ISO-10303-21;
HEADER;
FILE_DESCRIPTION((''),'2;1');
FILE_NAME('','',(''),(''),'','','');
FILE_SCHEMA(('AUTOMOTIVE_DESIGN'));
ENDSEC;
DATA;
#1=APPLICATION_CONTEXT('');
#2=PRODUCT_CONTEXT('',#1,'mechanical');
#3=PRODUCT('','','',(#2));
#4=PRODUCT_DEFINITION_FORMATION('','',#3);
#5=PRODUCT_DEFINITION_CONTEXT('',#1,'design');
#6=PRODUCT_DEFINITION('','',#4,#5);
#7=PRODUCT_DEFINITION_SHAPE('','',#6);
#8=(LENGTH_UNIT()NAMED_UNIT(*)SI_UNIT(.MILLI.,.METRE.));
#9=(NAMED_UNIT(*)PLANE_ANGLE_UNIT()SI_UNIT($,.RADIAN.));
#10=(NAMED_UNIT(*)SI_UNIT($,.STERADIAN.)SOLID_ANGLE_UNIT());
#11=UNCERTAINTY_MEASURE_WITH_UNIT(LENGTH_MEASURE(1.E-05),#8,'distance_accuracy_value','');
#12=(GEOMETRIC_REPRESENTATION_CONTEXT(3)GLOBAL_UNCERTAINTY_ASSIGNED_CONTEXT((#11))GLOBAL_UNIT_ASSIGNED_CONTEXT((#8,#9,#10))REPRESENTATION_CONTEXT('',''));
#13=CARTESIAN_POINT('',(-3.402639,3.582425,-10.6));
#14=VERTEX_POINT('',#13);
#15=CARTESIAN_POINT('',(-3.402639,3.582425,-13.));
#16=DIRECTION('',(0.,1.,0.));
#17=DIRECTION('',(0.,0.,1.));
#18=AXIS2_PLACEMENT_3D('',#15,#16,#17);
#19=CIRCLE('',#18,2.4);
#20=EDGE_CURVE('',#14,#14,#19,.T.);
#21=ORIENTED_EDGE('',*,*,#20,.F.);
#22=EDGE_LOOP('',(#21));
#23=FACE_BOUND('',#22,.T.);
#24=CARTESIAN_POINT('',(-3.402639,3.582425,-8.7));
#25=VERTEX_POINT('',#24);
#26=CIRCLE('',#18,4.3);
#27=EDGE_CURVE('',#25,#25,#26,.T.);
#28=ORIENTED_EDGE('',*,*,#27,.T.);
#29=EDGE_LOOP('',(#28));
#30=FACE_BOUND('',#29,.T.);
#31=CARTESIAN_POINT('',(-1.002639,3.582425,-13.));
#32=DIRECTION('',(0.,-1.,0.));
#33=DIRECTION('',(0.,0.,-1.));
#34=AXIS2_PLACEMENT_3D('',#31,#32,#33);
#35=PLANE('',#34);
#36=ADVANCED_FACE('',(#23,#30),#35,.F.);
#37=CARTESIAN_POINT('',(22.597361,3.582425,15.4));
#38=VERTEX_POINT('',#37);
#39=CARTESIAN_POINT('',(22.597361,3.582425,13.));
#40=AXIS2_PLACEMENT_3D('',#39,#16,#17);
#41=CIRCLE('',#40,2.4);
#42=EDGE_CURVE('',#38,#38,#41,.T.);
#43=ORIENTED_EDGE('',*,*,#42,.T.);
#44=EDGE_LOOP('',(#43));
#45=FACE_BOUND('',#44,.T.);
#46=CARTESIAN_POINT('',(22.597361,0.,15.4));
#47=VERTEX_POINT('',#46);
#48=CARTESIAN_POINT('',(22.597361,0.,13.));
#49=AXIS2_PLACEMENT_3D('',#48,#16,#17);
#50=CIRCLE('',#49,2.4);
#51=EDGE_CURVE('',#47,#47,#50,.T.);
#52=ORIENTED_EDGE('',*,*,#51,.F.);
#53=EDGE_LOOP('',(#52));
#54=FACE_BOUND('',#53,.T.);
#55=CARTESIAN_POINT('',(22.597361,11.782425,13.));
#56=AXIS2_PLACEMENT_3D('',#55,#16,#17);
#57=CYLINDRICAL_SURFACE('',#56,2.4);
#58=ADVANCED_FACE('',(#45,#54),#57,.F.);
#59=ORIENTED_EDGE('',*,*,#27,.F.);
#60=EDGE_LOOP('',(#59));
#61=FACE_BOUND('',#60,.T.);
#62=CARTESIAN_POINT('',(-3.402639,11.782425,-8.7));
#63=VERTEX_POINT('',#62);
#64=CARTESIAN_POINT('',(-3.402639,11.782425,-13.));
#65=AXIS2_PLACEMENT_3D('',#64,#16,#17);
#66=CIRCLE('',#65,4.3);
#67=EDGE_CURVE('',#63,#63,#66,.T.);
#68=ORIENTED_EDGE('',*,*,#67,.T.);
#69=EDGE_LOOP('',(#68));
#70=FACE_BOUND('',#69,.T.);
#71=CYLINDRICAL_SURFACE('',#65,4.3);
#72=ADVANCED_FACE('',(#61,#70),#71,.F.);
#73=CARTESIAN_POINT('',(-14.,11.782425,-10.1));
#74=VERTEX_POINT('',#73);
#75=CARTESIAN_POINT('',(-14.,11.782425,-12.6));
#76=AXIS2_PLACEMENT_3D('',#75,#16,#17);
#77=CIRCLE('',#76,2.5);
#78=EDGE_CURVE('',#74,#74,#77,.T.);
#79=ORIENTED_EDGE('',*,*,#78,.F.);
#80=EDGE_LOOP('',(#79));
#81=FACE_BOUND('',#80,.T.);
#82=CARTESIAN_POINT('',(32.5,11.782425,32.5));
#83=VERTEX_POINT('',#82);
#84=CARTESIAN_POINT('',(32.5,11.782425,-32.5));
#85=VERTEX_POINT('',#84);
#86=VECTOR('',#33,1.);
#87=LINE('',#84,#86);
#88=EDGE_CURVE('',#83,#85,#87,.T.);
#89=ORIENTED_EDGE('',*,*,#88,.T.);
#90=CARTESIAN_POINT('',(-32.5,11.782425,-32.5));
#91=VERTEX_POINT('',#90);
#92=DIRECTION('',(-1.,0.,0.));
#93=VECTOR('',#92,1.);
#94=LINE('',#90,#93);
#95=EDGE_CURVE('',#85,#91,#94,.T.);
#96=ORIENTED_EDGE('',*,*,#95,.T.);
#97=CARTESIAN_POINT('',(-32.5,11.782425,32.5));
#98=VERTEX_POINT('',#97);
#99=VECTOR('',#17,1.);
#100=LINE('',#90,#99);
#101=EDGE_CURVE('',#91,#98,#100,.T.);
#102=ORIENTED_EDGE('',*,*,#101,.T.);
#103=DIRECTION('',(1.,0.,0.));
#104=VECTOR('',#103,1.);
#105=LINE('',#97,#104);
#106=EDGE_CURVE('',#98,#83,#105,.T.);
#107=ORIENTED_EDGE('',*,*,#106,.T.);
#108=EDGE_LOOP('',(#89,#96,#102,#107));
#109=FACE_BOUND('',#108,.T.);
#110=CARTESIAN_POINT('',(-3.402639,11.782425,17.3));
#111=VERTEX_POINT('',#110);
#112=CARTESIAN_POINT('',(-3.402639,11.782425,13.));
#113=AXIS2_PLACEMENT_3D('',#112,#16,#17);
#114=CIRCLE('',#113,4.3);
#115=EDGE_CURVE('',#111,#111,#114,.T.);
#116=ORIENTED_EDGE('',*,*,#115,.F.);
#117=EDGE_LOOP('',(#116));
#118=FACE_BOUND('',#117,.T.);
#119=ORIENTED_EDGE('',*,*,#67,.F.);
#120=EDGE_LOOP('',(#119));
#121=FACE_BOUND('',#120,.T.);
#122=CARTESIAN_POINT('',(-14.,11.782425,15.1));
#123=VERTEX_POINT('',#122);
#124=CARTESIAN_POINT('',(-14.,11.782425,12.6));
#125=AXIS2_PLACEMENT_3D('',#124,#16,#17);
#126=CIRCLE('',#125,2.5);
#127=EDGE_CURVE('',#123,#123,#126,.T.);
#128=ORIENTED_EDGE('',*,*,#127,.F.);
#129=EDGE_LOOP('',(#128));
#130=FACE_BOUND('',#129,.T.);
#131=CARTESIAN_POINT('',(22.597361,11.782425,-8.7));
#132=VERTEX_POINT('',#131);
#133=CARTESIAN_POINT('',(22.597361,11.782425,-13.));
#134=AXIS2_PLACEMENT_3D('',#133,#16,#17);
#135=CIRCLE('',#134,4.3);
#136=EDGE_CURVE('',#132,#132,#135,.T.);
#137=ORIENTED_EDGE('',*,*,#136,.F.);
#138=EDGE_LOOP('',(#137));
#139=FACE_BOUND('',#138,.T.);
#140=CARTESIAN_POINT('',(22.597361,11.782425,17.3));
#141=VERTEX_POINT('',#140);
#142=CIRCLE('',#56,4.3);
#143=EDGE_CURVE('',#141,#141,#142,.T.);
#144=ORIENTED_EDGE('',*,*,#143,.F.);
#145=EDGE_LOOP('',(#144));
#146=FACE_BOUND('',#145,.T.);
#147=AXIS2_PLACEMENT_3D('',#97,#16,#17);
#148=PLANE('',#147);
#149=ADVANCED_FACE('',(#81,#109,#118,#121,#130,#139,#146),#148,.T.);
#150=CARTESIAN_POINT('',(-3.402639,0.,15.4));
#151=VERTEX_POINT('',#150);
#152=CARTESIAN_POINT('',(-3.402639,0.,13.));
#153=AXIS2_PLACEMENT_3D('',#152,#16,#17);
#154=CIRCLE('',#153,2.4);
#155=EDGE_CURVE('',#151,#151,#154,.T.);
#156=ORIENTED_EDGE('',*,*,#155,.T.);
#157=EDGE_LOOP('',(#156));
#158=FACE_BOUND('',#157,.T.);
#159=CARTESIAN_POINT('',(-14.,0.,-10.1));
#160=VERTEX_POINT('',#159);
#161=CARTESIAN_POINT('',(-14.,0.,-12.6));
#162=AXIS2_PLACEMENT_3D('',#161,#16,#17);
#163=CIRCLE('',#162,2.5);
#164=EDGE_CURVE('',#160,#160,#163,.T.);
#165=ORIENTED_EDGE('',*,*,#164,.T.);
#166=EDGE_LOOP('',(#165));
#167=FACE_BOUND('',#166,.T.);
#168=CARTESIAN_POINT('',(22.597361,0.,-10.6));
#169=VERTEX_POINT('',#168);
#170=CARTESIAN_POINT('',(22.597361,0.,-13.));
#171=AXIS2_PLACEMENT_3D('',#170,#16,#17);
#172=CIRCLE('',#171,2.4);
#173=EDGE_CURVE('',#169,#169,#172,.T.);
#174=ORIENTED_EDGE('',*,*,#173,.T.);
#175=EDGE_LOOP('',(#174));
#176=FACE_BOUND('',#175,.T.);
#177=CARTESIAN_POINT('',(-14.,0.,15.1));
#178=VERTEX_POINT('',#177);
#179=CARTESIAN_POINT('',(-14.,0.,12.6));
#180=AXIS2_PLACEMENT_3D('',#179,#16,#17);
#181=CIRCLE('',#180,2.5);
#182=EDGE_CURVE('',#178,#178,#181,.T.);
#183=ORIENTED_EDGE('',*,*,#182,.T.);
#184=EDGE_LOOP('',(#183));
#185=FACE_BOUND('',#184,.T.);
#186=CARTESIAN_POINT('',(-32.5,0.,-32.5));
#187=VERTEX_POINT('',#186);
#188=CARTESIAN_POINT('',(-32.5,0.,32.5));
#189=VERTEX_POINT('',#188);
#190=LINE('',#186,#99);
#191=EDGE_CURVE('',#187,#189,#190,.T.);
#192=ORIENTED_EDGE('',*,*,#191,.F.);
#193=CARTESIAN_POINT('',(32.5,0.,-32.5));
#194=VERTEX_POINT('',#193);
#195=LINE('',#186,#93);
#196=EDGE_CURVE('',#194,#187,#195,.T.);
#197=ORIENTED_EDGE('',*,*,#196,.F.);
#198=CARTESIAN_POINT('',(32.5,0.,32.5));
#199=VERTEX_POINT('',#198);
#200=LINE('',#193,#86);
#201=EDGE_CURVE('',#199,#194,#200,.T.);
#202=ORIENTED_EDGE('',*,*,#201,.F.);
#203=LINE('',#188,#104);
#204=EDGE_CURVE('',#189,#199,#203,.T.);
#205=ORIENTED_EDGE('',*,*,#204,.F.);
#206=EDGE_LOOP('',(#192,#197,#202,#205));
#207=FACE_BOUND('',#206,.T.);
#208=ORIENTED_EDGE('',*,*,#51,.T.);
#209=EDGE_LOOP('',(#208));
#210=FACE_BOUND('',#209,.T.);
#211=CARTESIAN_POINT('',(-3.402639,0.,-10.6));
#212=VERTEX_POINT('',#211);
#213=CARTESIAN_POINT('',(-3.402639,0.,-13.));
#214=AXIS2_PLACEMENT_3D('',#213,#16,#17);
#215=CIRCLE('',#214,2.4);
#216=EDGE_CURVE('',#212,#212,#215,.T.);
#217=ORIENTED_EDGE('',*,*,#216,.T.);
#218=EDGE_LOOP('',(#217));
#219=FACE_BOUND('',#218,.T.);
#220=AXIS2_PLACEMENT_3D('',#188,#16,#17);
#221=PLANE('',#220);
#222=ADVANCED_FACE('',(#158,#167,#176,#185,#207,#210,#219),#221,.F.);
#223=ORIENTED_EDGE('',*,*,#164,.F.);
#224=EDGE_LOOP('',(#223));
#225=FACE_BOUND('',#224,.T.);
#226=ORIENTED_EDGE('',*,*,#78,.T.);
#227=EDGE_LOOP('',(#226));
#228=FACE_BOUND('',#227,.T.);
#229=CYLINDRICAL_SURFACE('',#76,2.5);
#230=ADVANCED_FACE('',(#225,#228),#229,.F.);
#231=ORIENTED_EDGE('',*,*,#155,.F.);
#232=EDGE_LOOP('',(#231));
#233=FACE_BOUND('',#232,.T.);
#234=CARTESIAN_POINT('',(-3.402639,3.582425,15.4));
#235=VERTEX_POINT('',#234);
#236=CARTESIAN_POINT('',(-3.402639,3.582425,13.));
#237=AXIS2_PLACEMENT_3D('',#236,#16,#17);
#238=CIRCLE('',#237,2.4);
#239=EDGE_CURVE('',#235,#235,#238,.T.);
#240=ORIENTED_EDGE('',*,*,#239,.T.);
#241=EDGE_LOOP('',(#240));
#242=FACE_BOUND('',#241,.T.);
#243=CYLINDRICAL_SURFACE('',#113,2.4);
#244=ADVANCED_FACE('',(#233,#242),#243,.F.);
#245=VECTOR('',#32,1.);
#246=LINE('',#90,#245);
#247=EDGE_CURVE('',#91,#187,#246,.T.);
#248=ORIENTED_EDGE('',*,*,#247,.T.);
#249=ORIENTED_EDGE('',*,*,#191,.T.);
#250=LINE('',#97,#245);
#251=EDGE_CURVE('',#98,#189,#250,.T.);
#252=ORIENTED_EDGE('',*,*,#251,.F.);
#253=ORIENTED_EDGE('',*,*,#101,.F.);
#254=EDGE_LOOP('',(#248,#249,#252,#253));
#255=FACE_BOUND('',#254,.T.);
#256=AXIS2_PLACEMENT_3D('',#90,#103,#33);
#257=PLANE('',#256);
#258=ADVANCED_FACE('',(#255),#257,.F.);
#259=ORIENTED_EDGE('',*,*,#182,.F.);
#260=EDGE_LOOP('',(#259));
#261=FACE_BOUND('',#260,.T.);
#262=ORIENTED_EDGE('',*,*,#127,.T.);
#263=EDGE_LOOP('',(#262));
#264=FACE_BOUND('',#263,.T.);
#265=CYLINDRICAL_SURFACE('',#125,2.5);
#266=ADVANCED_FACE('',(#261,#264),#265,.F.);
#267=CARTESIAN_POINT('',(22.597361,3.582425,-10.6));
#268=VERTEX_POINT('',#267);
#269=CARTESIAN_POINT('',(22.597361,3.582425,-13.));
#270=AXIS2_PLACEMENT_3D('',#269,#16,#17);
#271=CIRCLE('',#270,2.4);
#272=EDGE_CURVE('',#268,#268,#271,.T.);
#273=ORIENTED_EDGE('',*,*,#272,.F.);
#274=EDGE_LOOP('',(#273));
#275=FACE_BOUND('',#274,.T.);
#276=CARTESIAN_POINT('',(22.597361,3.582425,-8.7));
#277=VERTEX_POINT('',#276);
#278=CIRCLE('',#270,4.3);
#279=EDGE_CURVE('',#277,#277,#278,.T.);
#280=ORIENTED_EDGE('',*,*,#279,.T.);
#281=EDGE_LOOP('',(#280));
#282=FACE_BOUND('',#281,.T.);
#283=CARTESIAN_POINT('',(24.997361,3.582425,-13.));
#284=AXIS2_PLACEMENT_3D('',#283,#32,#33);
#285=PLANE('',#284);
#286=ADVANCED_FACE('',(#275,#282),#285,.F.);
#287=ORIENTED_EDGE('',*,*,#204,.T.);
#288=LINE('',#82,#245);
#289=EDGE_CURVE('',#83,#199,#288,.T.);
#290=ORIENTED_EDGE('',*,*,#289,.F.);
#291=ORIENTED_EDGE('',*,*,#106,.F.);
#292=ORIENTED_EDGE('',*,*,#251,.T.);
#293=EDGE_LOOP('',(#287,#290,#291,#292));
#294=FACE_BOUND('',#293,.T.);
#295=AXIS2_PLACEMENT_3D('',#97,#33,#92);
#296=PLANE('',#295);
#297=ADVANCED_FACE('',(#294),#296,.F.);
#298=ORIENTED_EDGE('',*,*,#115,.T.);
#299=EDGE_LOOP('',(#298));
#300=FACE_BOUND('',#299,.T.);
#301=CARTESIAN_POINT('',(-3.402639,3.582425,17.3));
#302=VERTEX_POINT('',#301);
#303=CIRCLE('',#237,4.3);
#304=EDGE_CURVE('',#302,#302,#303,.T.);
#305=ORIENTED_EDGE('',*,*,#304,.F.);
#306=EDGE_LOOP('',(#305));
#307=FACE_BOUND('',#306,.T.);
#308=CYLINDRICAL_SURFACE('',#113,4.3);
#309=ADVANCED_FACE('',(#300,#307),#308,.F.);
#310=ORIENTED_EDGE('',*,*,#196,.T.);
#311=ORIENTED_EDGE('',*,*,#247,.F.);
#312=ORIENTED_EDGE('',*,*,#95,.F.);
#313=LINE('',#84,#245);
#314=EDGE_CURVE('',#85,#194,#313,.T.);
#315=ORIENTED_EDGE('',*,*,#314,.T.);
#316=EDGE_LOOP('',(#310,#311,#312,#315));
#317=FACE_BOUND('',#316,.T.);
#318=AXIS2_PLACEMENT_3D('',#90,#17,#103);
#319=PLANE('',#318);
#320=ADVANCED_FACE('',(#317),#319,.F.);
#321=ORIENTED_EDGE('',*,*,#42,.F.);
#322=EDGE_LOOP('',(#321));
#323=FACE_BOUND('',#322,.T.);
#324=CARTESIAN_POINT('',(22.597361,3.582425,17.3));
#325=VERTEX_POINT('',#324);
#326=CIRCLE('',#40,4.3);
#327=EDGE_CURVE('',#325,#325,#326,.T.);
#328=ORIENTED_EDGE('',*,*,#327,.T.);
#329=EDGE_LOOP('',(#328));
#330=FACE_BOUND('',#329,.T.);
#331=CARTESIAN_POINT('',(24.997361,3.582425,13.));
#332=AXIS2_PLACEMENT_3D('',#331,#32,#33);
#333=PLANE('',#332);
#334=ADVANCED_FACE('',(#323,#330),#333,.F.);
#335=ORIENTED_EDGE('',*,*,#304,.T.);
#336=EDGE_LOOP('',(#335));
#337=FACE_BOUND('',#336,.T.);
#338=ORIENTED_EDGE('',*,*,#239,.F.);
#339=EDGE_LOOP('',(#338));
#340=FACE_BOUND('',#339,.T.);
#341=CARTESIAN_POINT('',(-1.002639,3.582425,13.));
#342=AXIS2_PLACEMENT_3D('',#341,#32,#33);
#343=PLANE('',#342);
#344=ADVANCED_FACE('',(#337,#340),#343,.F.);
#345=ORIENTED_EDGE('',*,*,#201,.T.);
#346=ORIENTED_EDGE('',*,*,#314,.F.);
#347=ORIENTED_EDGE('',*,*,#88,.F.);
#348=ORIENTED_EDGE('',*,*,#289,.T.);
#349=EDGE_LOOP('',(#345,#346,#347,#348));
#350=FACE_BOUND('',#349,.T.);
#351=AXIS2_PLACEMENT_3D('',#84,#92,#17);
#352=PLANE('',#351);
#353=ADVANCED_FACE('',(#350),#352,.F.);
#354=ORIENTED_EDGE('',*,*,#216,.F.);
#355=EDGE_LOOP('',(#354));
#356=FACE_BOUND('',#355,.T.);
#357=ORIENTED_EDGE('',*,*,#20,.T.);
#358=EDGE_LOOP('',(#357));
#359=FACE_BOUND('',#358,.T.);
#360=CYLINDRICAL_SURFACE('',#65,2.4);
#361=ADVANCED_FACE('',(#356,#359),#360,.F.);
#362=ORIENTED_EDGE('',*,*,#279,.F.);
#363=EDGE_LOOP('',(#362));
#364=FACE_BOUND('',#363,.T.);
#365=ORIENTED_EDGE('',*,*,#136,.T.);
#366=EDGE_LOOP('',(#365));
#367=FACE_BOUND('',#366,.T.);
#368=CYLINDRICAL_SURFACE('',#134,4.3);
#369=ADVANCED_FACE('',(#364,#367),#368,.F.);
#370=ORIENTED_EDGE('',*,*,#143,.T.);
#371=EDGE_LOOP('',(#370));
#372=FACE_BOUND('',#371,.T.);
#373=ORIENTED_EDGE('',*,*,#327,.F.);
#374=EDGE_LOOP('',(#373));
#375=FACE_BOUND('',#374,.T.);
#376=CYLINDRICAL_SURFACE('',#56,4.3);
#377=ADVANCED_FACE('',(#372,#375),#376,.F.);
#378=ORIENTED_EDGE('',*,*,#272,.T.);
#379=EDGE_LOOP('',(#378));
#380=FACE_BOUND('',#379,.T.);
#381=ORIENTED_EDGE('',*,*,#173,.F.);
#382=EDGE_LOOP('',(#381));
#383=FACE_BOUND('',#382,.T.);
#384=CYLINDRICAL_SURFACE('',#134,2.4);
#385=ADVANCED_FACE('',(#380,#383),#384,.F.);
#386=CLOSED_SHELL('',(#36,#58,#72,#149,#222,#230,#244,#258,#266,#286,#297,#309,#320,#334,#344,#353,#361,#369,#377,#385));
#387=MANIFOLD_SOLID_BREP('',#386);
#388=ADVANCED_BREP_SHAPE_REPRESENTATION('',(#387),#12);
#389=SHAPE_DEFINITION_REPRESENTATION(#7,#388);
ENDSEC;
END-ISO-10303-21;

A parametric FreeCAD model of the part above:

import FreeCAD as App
import Part
import Sketcher

V = App.Vector


def add_polygon(sketch, points):
    """Adds a closed chain of lines whose ends are joined by coincident constraints."""
    first, n = sketch.GeometryCount, len(points)
    for a, b in zip(points, points[1:] + points[:1]):
        sketch.addGeometry(Part.LineSegment(App.Vector(*a, 0), App.Vector(*b, 0)), False)
    for i in range(n):
        sketch.addConstraint(Sketcher.Constraint("Coincident", first + i, 2, first + (i + 1) % n, 1))

doc = App.newDocument("Part")
body = doc.addObject("PartDesign::Body", "Body")

# Sketch on XZ plane
sketch1 = doc.addObject("Sketcher::SketchObject", "Sketch")
body.addObject(sketch1)
sketch1.AttachmentSupport = (doc.XZ_Plane, [""])
sketch1.MapMode = "FlatFace"
add_polygon(sketch1, [(-32.5, -32.5), (-32.5, 32.5), (32.5, 32.5), (32.5, -32.5)])  # lines 0-3
sketch1.addConstraint([
    Sketcher.Constraint("Vertical", 0),
    Sketcher.Constraint("Horizontal", 1),
    Sketcher.Constraint("Vertical", 2),
    Sketcher.Constraint("Horizontal", 3),
    Sketcher.Constraint("Symmetric", 0, 2, 2, 2, -1, 1),
    Sketcher.Constraint("Equal", 3, 0),
    Sketcher.Constraint("DistanceX", 1, 1, 1, 2, 65.0),
])
pad1 = doc.addObject("PartDesign::Pad", "Pad")
body.addObject(pad1)
pad1.Profile = sketch1
pad1.Length = 11.782425
pad1.Reversed = True

# Sketch on XZ plane
sketch2 = doc.addObject("Sketcher::SketchObject", "Sketch001")
body.addObject(sketch2)
sketch2.AttachmentSupport = (doc.XZ_Plane, [""])
sketch2.MapMode = "FlatFace"
sketch2.AttachmentOffset = App.Placement(V(0, 0, -11.782425), App.Rotation())
sketch2.addGeometry([
    Part.Circle(V(-14, -12.6, 0), V(0, 0, 1), 2.5),
    Part.Circle(V(-14, 12.6, 0), V(0, 0, 1), 2.5),
], False)
sketch2.addConstraint([
    Sketcher.Constraint("Equal", 0, 1),
    Sketcher.Constraint("Symmetric", 0, 3, 1, 3, -1),
    Sketcher.Constraint("Diameter", 0, 5.0),
    Sketcher.Constraint("DistanceX", 0, 3, -1, 1, 14.0),
    Sketcher.Constraint("DistanceY", 0, 3, -1, 1, 12.6),
])
doc.recompute()
hole = doc.addObject("PartDesign::Hole", "Hole")
body.addObject(hole)
hole.Profile = sketch2
hole.ThreadType = "None"
hole.Diameter = 5
hole.DepthType = "ThroughAll"
hole.Reversed = True

# Sketch on XZ plane
sketch3 = doc.addObject("Sketcher::SketchObject", "Sketch002")
body.addObject(sketch3)
sketch3.AttachmentSupport = (doc.XZ_Plane, [""])
sketch3.MapMode = "FlatFace"
sketch3.AttachmentOffset = App.Placement(V(0, 0, -11.782425), App.Rotation())
sketch3.addGeometry([
    Part.Circle(V(-3.402639, 13, 0), V(0, 0, 1), 2.4),
    Part.Circle(V(22.597361, 13, 0), V(0, 0, 1), 2.4),
    Part.Circle(V(22.597361, -13, 0), V(0, 0, 1), 2.4),
    Part.Circle(V(-3.402639, -13, 0), V(0, 0, 1), 2.4),
], False)
sketch3.addConstraint([
    Sketcher.Constraint("Equal", 0, 1),
    Sketcher.Constraint("Equal", 1, 2),
    Sketcher.Constraint("Equal", 2, 3),
    Sketcher.Constraint("Symmetric", 1, 3, 2, 3, -1),
    Sketcher.Constraint("Symmetric", 0, 3, 3, 3, -1),
    Sketcher.Constraint("Horizontal", 0, 3, 1, 3),
    Sketcher.Constraint("Diameter", 0, 4.8),
    Sketcher.Constraint("DistanceY", -1, 1, 0, 3, 13.0),
    Sketcher.Constraint("DistanceX", 0, 3, 1, 3, 26.0),
    Sketcher.Constraint("DistanceX", 0, 3, -1, 1, 3.402639),
])
doc.recompute()
hole2 = doc.addObject("PartDesign::Hole", "Hole001")
body.addObject(hole2)
hole2.Profile = sketch3
hole2.ThreadType = "None"
hole2.Diameter = 4.8
hole2.DepthType = "ThroughAll"
hole2.HoleCutType = "Counterbore"
hole2.HoleCutDiameter = 8.6
hole2.HoleCutDepth = 8.2
hole2.Reversed = True

doc.recompute()
